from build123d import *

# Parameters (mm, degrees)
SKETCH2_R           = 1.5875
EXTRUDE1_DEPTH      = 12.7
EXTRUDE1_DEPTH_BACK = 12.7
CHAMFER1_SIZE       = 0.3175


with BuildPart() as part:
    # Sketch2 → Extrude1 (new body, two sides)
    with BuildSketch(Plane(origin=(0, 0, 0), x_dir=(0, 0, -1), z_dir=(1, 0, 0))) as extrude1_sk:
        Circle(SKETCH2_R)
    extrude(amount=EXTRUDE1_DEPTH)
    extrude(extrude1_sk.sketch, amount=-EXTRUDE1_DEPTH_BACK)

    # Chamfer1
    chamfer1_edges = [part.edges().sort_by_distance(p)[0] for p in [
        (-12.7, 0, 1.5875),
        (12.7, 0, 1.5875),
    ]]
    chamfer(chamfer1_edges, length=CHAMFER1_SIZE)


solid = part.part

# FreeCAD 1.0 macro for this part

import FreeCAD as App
import Part
import Sketcher

V = App.Vector
Q = App.Units.Quantity


def edges_at(feature, points):
    """Names of the edges that pass closest to the given points."""
    edges = feature.Shape.Edges
    near = lambda p: min(range(len(edges)), key=lambda i: edges[i].distToShape(Part.Vertex(*p))[0])
    return sorted({f"Edge{near(p) + 1}" for p in points})

doc = App.newDocument("Part")
body = doc.addObject("PartDesign::Body", "Body")

sketch1 = body.newObject("Sketcher::SketchObject", "Sketch")
sketch1.AttachmentSupport = (doc.getObject("YZ_Plane"), [""])
sketch1.MapMode = "FlatFace"
sketch1.addGeometry(Part.Circle(V(0, 0, 0), V(0, 0, 1), 1.6), False)
sketch1.addConstraint([
    Sketcher.Constraint("Coincident", 0, 3, -1, 1),
    Sketcher.Constraint("Diameter", 0, Q("0.125 in")),
])
pad1 = body.newObject("PartDesign::Pad", "Pad")
pad1.Profile = sketch1
pad1.Type = "TwoLengths"
pad1.Length = Q("0.5 in")
pad1.Length2 = Q("0.5 in")
doc.recompute()

chamfer = body.newObject("PartDesign::Chamfer", "Chamfer")
chamfer.Base = (pad1, edges_at(pad1, [(-12.7, 0, 1.587), (12.7, 0, 1.587)]))
chamfer.Size = Q("0.0125 in")

doc.recompute()
